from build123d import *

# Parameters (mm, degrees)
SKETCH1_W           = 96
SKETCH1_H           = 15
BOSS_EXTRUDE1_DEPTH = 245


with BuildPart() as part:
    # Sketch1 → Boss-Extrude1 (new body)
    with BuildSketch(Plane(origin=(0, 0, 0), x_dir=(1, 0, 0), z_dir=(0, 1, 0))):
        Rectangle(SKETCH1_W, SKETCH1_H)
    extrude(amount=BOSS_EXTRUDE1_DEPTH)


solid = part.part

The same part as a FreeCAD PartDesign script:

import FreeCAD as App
import Part
import Sketcher
from FreeCAD import Vector


def add_polygon(sketch, points):
    """Adds a closed chain of lines whose ends are joined by coincident constraints."""
    first, n = sketch.GeometryCount, len(points)
    for a, b in zip(points, points[1:] + points[:1]):
        sketch.addGeometry(Part.LineSegment(App.Vector(*a, 0), App.Vector(*b, 0)), False)
    for i in range(n):
        sketch.addConstraint(Sketcher.Constraint("Coincident", first + i, 2, first + (i + 1) % n, 1))

doc = App.newDocument("Part")
body = doc.addObject("PartDesign::Body", "Body")

# Sketch on XZ plane
sketch1 = doc.addObject("Sketcher::SketchObject", "Sketch")
body.addObject(sketch1)
sketch1.AttachmentSupport = (doc.XZ_Plane, [""])
sketch1.MapMode = "FlatFace"
add_polygon(sketch1, [(-48, -8), (-48, 8), (48, 8), (48, -8)])  # lines 0-3
sketch1.addConstraint(Sketcher.Constraint("Vertical", 0))
sketch1.addConstraint(Sketcher.Constraint("Horizontal", 1))
sketch1.addConstraint(Sketcher.Constraint("Vertical", 2))
sketch1.addConstraint(Sketcher.Constraint("Horizontal", 3))
sketch1.addConstraint(Sketcher.Constraint("Symmetric", 0, 2, 2, 2, -1, 1))
sketch1.addConstraint(Sketcher.Constraint("DistanceX", 1, 1, 1, 2, 96.0))
sketch1.addConstraint(Sketcher.Constraint("DistanceY", 0, 1, 0, 2, 15.0))
pad1 = doc.addObject("PartDesign::Pad", "Pad")
body.addObject(pad1)
pad1.Profile = sketch1
pad1.Length = 245
pad1.Reversed = True

doc.recompute()
